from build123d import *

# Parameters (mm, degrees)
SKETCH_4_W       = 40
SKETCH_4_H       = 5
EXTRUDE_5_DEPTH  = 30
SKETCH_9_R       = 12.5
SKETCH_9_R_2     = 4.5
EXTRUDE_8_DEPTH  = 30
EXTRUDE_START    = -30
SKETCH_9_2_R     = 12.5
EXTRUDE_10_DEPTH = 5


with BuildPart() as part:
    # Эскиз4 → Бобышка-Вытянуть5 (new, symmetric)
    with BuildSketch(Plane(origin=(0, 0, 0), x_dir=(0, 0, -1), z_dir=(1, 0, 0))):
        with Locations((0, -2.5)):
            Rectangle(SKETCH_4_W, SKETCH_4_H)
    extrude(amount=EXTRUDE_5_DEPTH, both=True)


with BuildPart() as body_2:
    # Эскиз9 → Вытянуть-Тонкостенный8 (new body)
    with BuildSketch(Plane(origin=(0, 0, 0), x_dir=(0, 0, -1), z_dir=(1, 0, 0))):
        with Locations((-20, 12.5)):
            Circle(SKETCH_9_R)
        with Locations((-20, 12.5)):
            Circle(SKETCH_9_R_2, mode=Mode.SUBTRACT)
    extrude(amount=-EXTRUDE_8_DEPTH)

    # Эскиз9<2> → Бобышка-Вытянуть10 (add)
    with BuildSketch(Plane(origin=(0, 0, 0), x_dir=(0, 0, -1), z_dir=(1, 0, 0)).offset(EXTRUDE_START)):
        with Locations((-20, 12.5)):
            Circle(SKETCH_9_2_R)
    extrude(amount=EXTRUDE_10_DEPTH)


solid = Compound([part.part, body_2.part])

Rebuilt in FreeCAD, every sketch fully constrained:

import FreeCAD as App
import Part
import Sketcher

V = App.Vector


def add_polygon(sketch, points):
    """Adds a closed chain of lines whose ends are joined by coincident constraints."""
    first, n = sketch.GeometryCount, len(points)
    for a, b in zip(points, points[1:] + points[:1]):
        sketch.addGeometry(Part.LineSegment(App.Vector(*a, 0), App.Vector(*b, 0)), False)
    for i in range(n):
        sketch.addConstraint(Sketcher.Constraint("Coincident", first + i, 2, first + (i + 1) % n, 1))

doc = App.newDocument("Part")
body = doc.addObject("PartDesign::Body", "Body")

# Sketch on YZ plane
sketch1 = body.newObject("Sketcher::SketchObject", "Sketch")
sketch1.AttachmentSupport = (doc.getObject("YZ_Plane"), [""])
sketch1.MapMode = "FlatFace"
add_polygon(sketch1, [(0, 20), (-5, 20), (-5, -20), (0, -20)])  # lines 0-3
sketch1.addConstraint([
    Sketcher.Constraint("Horizontal", 0),
    Sketcher.Constraint("Vertical", 1),
    Sketcher.Constraint("Horizontal", 2),
    Sketcher.Constraint("Vertical", 3),
    Sketcher.Constraint("Symmetric", 2, 2, 3, 2, -1, 1),
    Sketcher.Constraint("DistanceX", 0, 2, 0, 1, 5.0),
    Sketcher.Constraint("DistanceY", 1, 2, 1, 1, 40.0),
])
pad1 = body.newObject("PartDesign::Pad", "Pad")
pad1.Profile = sketch1
pad1.Length = 60
pad1.Midplane = True
body2 = doc.addObject("PartDesign::Body", "Body001")

# Sketch on YZ plane
sketch2 = body2.newObject("Sketcher::SketchObject", "Sketch001")
sketch2.AttachmentSupport = (doc.getObject("YZ_Plane001"), [""])
sketch2.MapMode = "FlatFace"
sketch2.addGeometry([
    Part.Circle(V(12.5, 20, 0), V(0, 0, 1), 12.5),
    Part.Circle(V(12.5, 20, 0), V(0, 0, 1), 4.5),
], False)
sketch2.addConstraint([
    Sketcher.Constraint("Coincident", 1, 3, 0, 3),
    Sketcher.Constraint("Diameter", 0, 25.0),
    Sketcher.Constraint("Diameter", 1, 9.0),
    Sketcher.Constraint("DistanceY", -1, 1, 0, 3, 20.0),
    Sketcher.Constraint("DistanceX", -1, 1, 0, 3, 12.5),
])
pad2 = body2.newObject("PartDesign::Pad", "Pad001")
pad2.Profile = sketch2
pad2.Length = 30
pad2.Reversed = True

# Sketch on YZ plane
sketch3 = body2.newObject("Sketcher::SketchObject", "Sketch002")
sketch3.AttachmentSupport = (doc.getObject("YZ_Plane001"), [""])
sketch3.MapMode = "FlatFace"
sketch3.AttachmentOffset = App.Placement(V(0, 0, -30), App.Rotation())
sketch3.addGeometry(Part.Circle(V(12.5, 20, 0), V(0, 0, 1), 12.5), False)
sketch3.addConstraint([
    Sketcher.Constraint("Diameter", 0, 25.0),
    Sketcher.Constraint("DistanceY", -1, 1, 0, 3, 20.0),
    Sketcher.Constraint("DistanceX", -1, 1, 0, 3, 12.5),
])
pad3 = body2.newObject("PartDesign::Pad", "Pad002")
pad3.Profile = sketch3
pad3.Length = 5

doc.recompute()
